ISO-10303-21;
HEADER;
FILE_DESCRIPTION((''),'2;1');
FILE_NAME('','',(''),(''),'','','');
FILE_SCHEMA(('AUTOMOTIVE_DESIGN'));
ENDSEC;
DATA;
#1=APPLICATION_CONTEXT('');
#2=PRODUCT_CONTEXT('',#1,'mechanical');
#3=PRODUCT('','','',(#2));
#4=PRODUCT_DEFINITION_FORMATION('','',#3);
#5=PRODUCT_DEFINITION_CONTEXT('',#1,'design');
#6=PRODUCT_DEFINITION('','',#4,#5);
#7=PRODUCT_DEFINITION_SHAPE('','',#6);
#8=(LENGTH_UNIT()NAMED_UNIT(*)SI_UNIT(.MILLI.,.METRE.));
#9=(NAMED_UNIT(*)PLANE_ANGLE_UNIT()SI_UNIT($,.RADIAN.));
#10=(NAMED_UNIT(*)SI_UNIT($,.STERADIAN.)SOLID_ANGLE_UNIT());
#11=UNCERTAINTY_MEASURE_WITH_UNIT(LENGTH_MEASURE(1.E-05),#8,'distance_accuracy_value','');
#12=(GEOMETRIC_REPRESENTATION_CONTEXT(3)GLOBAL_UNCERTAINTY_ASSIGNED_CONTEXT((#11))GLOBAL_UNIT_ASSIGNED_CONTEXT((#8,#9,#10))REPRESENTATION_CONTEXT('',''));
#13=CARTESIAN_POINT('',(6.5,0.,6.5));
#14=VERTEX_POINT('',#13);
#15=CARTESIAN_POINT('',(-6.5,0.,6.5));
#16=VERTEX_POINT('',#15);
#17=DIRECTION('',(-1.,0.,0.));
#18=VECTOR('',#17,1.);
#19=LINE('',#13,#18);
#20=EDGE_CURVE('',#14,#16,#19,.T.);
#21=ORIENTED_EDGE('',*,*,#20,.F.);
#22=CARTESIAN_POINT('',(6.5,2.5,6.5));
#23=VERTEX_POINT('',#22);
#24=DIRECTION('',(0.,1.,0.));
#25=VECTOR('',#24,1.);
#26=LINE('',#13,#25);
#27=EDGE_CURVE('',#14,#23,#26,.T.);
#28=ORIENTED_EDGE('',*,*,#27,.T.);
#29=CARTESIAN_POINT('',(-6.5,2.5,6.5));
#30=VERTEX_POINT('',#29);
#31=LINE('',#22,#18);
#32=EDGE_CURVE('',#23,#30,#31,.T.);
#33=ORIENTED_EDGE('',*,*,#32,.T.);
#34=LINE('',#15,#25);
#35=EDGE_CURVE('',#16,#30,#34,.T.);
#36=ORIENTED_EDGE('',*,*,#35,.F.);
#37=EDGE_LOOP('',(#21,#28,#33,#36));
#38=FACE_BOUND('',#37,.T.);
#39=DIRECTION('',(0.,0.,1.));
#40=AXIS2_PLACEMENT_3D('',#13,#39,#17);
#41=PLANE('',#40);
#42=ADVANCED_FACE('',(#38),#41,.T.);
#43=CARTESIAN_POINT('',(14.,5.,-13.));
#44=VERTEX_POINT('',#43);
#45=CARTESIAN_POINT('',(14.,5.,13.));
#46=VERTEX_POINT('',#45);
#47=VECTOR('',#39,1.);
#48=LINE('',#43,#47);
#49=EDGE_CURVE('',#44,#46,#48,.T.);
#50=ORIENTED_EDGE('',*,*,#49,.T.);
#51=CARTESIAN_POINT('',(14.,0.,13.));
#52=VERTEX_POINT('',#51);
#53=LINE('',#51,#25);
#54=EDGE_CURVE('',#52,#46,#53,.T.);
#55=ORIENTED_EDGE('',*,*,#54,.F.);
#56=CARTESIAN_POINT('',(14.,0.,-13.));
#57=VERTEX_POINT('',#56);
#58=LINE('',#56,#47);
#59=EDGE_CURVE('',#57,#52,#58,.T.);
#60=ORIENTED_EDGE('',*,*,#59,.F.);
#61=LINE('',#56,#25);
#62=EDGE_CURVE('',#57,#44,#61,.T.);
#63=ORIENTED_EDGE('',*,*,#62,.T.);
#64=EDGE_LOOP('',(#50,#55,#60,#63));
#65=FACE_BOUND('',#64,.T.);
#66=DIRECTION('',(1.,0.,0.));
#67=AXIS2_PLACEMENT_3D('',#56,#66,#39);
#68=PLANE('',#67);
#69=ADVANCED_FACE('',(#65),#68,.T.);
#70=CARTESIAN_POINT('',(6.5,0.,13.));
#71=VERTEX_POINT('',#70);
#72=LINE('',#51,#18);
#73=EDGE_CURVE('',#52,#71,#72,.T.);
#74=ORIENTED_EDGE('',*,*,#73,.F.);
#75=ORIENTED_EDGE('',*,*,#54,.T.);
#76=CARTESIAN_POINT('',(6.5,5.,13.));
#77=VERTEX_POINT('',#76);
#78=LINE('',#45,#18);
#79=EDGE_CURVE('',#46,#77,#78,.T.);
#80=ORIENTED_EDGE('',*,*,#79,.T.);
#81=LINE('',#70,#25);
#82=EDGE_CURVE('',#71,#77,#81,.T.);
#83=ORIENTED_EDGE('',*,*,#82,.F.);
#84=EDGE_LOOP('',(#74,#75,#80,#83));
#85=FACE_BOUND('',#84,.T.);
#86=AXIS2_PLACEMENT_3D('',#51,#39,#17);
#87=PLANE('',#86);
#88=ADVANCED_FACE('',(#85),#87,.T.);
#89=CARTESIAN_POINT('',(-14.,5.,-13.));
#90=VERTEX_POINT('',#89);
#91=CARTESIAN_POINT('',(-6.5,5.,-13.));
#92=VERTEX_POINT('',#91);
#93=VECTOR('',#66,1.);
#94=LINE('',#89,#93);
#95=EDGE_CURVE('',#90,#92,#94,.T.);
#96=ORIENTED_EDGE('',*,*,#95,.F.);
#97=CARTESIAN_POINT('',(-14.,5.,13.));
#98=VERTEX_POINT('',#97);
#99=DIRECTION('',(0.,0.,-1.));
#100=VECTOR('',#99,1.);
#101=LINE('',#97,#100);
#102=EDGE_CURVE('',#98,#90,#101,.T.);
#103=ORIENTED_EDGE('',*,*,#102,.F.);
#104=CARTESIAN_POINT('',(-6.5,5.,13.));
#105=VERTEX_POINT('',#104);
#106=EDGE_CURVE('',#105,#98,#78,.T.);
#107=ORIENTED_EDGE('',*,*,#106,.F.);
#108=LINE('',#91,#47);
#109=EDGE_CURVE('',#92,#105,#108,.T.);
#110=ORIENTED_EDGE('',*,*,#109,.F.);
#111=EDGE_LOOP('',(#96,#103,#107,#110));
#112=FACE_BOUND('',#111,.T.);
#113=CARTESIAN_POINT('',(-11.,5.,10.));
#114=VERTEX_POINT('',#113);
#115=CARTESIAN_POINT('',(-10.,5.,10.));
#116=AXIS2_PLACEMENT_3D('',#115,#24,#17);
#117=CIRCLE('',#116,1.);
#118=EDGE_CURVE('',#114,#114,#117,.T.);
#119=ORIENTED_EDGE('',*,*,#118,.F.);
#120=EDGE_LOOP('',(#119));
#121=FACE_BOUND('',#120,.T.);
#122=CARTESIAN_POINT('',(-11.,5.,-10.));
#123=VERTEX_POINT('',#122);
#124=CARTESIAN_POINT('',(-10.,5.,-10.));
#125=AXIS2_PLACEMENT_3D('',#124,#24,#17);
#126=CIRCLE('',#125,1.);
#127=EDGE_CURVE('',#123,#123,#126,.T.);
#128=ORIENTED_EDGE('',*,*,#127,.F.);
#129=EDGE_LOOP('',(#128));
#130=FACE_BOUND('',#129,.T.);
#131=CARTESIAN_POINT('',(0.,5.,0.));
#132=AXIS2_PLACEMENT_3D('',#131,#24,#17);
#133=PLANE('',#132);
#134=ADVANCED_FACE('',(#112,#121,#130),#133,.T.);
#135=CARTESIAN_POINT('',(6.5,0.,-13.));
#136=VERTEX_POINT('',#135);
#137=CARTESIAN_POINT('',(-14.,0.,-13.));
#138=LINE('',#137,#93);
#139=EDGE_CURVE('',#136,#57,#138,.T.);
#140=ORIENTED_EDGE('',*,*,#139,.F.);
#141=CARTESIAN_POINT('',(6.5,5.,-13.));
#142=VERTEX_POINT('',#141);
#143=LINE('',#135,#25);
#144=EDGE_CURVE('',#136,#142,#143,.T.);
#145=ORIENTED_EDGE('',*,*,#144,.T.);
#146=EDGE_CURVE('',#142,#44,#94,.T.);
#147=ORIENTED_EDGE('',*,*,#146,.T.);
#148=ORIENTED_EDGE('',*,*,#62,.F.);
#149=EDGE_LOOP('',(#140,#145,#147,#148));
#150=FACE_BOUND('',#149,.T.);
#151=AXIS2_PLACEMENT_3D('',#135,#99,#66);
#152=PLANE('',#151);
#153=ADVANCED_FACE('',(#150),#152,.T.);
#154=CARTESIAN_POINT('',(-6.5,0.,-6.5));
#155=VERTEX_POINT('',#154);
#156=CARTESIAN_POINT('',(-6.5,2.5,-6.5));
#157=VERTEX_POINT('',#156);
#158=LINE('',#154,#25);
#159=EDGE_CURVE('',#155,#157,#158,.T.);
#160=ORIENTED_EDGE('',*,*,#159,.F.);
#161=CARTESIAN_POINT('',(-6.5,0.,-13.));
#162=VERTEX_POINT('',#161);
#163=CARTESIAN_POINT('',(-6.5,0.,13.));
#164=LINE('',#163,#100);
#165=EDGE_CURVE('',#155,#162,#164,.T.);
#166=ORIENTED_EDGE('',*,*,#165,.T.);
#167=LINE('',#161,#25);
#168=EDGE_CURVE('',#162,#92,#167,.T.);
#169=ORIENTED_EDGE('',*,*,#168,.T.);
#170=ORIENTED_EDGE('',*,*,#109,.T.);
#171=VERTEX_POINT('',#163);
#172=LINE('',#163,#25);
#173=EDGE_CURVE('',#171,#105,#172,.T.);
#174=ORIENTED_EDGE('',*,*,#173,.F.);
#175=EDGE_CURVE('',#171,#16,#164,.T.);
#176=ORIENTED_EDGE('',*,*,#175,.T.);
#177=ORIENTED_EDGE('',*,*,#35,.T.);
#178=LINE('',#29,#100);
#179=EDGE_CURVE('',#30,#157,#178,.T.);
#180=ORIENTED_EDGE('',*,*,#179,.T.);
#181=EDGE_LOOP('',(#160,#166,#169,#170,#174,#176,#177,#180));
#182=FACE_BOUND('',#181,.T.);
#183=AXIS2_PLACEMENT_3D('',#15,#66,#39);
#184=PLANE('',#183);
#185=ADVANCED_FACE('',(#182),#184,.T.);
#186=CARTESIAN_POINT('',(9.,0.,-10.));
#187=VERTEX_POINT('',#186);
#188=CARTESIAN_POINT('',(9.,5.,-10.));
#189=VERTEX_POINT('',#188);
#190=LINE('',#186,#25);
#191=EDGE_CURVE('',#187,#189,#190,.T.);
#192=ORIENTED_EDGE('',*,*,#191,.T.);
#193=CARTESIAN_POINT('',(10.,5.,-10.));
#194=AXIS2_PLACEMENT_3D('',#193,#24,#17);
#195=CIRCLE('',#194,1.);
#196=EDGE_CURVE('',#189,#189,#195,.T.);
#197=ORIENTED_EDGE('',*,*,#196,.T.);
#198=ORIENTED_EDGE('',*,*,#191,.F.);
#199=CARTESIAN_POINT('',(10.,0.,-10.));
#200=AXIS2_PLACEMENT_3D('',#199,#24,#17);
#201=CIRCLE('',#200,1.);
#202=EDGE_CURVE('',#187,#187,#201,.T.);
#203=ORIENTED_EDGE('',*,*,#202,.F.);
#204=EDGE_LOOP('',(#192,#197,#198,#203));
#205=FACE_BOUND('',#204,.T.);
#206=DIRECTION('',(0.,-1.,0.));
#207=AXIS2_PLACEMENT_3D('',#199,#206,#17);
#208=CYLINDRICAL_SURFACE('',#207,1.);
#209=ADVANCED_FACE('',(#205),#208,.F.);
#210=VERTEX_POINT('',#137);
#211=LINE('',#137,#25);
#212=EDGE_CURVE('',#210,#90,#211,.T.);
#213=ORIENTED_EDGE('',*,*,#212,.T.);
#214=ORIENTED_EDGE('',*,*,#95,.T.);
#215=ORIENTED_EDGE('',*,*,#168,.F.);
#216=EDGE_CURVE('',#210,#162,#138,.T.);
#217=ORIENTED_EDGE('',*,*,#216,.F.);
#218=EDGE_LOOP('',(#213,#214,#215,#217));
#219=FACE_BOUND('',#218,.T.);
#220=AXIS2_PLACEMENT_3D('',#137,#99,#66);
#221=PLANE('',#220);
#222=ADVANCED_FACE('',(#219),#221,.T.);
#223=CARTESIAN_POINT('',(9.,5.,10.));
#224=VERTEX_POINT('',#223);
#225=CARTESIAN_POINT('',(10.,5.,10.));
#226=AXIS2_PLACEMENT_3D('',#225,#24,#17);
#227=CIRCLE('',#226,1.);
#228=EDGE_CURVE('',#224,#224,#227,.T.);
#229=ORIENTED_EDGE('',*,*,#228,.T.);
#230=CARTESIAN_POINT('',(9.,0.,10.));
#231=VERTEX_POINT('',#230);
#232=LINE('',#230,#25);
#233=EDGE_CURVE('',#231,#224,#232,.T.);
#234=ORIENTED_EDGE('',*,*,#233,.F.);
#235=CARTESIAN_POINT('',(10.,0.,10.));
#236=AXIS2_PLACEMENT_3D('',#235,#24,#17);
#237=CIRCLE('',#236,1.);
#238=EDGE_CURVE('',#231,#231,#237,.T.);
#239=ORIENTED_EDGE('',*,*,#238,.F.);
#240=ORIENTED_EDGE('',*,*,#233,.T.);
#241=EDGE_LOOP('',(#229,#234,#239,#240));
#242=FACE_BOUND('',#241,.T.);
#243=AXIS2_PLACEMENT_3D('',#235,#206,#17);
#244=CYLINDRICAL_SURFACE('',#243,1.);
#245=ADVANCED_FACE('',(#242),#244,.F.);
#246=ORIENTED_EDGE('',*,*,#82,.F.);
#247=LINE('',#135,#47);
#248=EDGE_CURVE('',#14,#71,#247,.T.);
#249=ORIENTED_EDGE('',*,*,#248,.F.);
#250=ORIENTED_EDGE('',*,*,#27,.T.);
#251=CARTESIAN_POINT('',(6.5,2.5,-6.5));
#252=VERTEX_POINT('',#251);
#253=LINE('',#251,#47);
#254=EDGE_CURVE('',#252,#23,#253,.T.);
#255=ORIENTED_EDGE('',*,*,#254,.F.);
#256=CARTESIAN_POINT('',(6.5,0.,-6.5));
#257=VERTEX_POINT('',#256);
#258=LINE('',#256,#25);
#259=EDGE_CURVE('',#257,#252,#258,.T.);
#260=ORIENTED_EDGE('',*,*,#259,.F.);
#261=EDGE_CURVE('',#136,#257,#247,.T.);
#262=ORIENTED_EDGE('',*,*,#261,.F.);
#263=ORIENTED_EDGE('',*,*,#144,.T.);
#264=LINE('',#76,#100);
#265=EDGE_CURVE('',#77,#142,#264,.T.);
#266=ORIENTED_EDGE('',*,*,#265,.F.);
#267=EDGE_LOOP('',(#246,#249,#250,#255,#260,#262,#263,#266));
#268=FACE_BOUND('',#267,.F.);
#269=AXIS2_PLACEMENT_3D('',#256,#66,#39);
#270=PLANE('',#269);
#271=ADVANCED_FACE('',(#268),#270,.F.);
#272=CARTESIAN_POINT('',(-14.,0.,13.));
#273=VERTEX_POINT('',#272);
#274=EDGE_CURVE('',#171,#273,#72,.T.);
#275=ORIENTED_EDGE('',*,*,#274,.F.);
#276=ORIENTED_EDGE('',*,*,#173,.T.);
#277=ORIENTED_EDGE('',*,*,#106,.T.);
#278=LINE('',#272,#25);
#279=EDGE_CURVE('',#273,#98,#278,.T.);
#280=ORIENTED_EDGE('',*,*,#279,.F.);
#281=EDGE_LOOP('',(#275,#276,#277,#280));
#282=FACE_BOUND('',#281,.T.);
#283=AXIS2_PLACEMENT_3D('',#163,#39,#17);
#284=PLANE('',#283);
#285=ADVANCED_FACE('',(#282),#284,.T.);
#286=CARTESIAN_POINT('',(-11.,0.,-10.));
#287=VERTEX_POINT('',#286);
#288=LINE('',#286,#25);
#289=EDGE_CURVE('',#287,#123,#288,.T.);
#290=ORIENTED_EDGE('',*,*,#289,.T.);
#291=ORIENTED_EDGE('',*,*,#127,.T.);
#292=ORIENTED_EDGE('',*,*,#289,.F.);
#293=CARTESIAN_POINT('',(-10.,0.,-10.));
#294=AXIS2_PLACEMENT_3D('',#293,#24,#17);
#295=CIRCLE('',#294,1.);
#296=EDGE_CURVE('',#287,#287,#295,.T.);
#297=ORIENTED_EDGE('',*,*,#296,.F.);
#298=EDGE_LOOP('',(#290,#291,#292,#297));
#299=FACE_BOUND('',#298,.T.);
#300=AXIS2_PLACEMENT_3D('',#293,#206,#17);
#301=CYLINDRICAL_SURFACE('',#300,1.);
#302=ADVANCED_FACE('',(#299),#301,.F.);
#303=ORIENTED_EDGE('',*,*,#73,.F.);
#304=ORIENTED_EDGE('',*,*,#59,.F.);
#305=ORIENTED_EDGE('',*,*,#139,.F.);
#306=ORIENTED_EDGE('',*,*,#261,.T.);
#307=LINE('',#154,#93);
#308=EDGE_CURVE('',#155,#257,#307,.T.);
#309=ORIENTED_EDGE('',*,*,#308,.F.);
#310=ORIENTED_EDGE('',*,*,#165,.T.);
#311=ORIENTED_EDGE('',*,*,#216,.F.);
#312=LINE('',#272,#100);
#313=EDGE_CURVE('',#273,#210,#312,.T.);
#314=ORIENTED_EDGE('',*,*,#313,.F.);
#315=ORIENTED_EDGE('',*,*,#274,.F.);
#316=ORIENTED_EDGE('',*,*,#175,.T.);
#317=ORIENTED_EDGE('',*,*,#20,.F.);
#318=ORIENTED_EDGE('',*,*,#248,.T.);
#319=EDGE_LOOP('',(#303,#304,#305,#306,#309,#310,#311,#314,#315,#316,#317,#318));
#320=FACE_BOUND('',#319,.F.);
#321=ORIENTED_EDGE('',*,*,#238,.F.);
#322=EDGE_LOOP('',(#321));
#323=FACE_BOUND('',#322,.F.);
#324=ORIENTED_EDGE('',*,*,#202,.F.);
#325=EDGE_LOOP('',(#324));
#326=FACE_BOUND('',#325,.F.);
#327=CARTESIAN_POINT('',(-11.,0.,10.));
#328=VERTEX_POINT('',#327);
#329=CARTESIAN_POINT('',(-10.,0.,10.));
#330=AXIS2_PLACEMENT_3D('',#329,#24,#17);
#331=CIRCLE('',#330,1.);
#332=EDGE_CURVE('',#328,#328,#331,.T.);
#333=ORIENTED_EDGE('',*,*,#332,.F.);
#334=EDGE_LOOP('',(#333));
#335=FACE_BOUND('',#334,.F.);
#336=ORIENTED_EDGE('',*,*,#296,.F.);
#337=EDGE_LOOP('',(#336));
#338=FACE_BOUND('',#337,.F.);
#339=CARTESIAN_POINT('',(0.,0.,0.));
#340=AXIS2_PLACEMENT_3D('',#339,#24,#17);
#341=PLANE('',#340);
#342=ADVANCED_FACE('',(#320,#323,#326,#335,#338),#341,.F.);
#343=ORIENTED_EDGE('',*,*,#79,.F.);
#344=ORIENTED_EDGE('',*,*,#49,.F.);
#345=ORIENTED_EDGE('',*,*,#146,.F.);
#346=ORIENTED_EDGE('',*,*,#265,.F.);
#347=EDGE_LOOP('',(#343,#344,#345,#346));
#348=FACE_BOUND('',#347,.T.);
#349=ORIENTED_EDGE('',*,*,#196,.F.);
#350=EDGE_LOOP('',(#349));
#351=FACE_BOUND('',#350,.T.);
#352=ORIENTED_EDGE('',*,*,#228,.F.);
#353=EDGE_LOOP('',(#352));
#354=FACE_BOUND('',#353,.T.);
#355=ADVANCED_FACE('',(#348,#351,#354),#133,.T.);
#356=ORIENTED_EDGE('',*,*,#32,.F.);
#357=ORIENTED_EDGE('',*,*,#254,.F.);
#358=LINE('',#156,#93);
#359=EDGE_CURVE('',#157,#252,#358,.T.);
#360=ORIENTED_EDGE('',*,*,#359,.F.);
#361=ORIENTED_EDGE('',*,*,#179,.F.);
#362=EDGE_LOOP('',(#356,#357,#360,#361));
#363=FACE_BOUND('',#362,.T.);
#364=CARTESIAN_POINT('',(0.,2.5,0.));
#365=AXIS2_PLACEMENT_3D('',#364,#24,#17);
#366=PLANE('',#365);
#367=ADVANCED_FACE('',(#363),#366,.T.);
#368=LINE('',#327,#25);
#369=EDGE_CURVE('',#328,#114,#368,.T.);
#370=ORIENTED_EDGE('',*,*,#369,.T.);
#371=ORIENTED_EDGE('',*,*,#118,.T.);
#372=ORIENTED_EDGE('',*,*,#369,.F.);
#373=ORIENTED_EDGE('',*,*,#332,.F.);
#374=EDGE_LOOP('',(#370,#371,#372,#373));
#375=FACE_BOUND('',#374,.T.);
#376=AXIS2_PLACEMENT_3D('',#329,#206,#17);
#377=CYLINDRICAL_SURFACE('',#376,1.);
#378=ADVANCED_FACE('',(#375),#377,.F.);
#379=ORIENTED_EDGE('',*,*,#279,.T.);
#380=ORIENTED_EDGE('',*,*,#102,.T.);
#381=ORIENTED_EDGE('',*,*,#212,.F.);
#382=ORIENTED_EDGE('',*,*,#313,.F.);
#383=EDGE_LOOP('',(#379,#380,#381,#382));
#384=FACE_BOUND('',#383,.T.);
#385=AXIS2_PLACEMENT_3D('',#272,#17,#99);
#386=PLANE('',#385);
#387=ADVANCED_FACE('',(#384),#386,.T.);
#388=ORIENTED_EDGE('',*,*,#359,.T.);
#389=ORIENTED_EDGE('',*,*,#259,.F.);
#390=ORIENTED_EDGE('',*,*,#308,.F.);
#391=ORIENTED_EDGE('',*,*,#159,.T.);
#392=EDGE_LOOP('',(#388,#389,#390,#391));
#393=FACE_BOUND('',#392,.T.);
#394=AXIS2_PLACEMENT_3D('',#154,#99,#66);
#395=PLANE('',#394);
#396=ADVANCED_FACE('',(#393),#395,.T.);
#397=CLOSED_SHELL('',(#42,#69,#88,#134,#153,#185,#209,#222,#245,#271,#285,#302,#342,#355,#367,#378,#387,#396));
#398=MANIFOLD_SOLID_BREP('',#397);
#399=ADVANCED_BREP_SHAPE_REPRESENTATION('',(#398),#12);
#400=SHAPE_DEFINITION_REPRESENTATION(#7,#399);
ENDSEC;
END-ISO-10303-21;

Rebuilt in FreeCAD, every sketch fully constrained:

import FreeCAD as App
import Part
import Sketcher


def add_polygon(sketch, points):
    """Adds a closed chain of lines whose ends are joined by coincident constraints."""
    first, n = sketch.GeometryCount, len(points)
    for a, b in zip(points, points[1:] + points[:1]):
        sketch.addGeometry(Part.LineSegment(App.Vector(*a, 0), App.Vector(*b, 0)), False)
    for i in range(n):
        sketch.addConstraint(Sketcher.Constraint("Coincident", first + i, 2, first + (i + 1) % n, 1))

doc = App.newDocument("Part")
body = doc.addObject("PartDesign::Body", "Body")
body.AllowCompound = True

# Sketch on XZ plane
sketch1 = body.newObject("Sketcher::SketchObject", "Sketch")
sketch1.AttachmentSupport = (doc.getObject("XZ_Plane"), [""])
sketch1.MapMode = "FlatFace"
add_polygon(sketch1, [(6.5, -13), (6.5, 13), (14, 13), (14, -13)])  # lines 0-3
sketch1.addGeometry(Part.Circle(App.Vector(10, -10, 0), App.Vector(0, 0, 1), 1), False)  # 4
sketch1.addGeometry(Part.Circle(App.Vector(10, 10, 0), App.Vector(0, 0, 1), 1), False)  # 5
add_polygon(sketch1, [(-6.5, 13), (-6.5, -13), (-14, -13), (-14, 13)])  # lines 6-9
sketch1.addGeometry(Part.Circle(App.Vector(-10, -10, 0), App.Vector(0, 0, 1), 1), False)  # 10
sketch1.addGeometry(Part.Circle(App.Vector(-10, 10, 0), App.Vector(0, 0, 1), 1), False)  # 11
sketch1.addConstraint(Sketcher.Constraint("Vertical", 0))
sketch1.addConstraint(Sketcher.Constraint("Horizontal", 1))
sketch1.addConstraint(Sketcher.Constraint("Vertical", 2))
sketch1.addConstraint(Sketcher.Constraint("Horizontal", 3))
sketch1.addConstraint(Sketcher.Constraint("Vertical", 6))
sketch1.addConstraint(Sketcher.Constraint("Horizontal", 7))
sketch1.addConstraint(Sketcher.Constraint("Vertical", 8))
sketch1.addConstraint(Sketcher.Constraint("Horizontal", 9))
sketch1.addConstraint(Sketcher.Constraint("Equal", 4, 5))
sketch1.addConstraint(Sketcher.Constraint("Equal", 5, 10))
sketch1.addConstraint(Sketcher.Constraint("Equal", 10, 11))
sketch1.addConstraint(Sketcher.Constraint("Symmetric", 5, 3, 10, 3, -1, 1))
sketch1.addConstraint(Sketcher.Constraint("Symmetric", 4, 3, 11, 3, -1, 1))
sketch1.addConstraint(Sketcher.Constraint("Symmetric", 0, 2, 6, 2, -1, 1))
sketch1.addConstraint(Sketcher.Constraint("Symmetric", 2, 2, 8, 2, -1, 1))
sketch1.addConstraint(Sketcher.Constraint("Symmetric", 4, 3, 10, 3, -2))
sketch1.addConstraint(Sketcher.Constraint("Horizontal", 3, 2, 6, 2))
sketch1.addConstraint(Sketcher.Constraint("Diameter", 4, 2.0))
sketch1.addConstraint(Sketcher.Constraint("DistanceY", 0, 1, 0, 2, 26.0))
sketch1.addConstraint(Sketcher.Constraint("DistanceX", 6, 2, 3, 2, 13.0))
sketch1.addConstraint(Sketcher.Constraint("DistanceX", 0, 2, 5, 3, 3.5))
sketch1.addConstraint(Sketcher.Constraint("DistanceX", 1, 1, 1, 2, 7.5))
sketch1.addConstraint(Sketcher.Constraint("DistanceY", 4, 3, -1, 1, 10.0))
pad1 = body.newObject("PartDesign::Pad", "Pad")
pad1.Profile = sketch1
pad1.Length = 5
pad1.Reversed = True

# Sketch on XZ plane
sketch2 = body.newObject("Sketcher::SketchObject", "Sketch001")
sketch2.AttachmentSupport = (doc.getObject("XZ_Plane"), [""])
sketch2.MapMode = "FlatFace"
add_polygon(sketch2, [(-6, 6), (6, 6), (6, -6), (-6, -6)])  # lines 0-3
sketch2.addConstraint(Sketcher.Constraint("Horizontal", 0))
sketch2.addConstraint(Sketcher.Constraint("Vertical", 1))
sketch2.addConstraint(Sketcher.Constraint("Horizontal", 2))
sketch2.addConstraint(Sketcher.Constraint("Vertical", 3))
sketch2.addConstraint(Sketcher.Constraint("Symmetric", 0, 2, 2, 2, -1, 1))
sketch2.addConstraint(Sketcher.Constraint("Equal", 2, 1))
sketch2.addConstraint(Sketcher.Constraint("DistanceX", 0, 1, 0, 2, 13.0))
pad2 = body.newObject("PartDesign::Pad", "Pad001")
pad2.Profile = sketch2
pad2.Length = 2.5
pad2.Reversed = True

doc.recompute()
